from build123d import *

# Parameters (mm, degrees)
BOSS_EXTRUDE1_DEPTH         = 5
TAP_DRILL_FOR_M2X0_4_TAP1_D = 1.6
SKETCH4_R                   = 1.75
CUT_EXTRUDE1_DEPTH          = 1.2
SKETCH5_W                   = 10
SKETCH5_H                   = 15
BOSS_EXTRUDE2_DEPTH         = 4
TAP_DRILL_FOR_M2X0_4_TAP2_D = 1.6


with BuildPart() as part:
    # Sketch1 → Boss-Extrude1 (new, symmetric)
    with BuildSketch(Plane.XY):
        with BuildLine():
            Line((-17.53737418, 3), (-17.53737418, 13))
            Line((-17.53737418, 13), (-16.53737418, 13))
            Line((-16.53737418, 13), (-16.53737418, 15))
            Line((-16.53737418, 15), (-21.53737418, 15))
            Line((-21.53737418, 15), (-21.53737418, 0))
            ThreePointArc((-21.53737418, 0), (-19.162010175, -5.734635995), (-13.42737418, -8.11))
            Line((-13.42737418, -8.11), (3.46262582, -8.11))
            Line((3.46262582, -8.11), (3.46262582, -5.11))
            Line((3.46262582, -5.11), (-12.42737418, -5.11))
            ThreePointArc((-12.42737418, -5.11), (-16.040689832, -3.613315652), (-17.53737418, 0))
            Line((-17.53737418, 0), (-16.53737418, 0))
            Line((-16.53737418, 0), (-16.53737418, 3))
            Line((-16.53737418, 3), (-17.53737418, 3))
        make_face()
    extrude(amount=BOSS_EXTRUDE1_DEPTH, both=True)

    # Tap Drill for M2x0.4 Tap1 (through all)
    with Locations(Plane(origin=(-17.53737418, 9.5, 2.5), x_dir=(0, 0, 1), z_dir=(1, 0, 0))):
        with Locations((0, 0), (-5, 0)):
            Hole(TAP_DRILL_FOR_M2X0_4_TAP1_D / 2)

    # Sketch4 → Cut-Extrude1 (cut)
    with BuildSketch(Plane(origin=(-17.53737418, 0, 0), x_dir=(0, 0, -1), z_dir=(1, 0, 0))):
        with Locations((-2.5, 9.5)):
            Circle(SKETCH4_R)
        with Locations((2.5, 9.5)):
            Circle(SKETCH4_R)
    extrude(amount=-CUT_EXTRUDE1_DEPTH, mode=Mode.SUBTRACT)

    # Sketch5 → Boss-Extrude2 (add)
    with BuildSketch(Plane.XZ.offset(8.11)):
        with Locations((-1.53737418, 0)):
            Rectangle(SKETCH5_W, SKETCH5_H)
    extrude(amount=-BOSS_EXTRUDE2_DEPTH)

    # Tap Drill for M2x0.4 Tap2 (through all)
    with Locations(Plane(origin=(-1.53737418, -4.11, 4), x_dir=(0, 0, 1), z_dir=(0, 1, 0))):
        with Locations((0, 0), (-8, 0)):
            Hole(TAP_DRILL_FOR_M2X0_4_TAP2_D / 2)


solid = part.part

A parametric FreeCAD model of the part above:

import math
import FreeCAD as App
import Part
import Sketcher


def add_polygon(sketch, points):
    """Adds a closed chain of lines whose ends are joined by coincident constraints."""
    first, n = sketch.GeometryCount, len(points)
    for a, b in zip(points, points[1:] + points[:1]):
        sketch.addGeometry(Part.LineSegment(App.Vector(*a, 0), App.Vector(*b, 0)), False)
    for i in range(n):
        sketch.addConstraint(Sketcher.Constraint("Coincident", first + i, 2, first + (i + 1) % n, 1))

doc = App.newDocument("Part")
body = doc.addObject("PartDesign::Body", "Body")

# Sketch on XY plane
sketch1 = doc.addObject("Sketcher::SketchObject", "Sketch")
body.addObject(sketch1)
sketch1.AttachmentSupport = (doc.XY_Plane, [""])
sketch1.MapMode = "FlatFace"
sketch1.addGeometry(Part.LineSegment(App.Vector(-17.5, 3, 0), App.Vector(-17.5, 13, 0)), False)
sketch1.addGeometry(Part.LineSegment(App.Vector(-17.5, 13, 0), App.Vector(-16.5, 13, 0)), False)
sketch1.addGeometry(Part.LineSegment(App.Vector(-16.5, 13, 0), App.Vector(-16.5, 15, 0)), False)
sketch1.addGeometry(Part.LineSegment(App.Vector(-16.5, 15, 0), App.Vector(-21.5, 15, 0)), False)
sketch1.addGeometry(Part.LineSegment(App.Vector(-21.5, 15, 0), App.Vector(-21.5, 0, 0)), False)
sketch1.addGeometry(Part.ArcOfCircle(Part.Circle(App.Vector(-13.4, 0, 0), App.Vector(0, 0, 1), 8.1), math.radians(-180), math.radians(-90)), False)
sketch1.addGeometry(Part.LineSegment(App.Vector(-13.4, -8.1, 0), App.Vector(3.5, -8.1, 0)), False)
sketch1.addGeometry(Part.LineSegment(App.Vector(3.5, -8.1, 0), App.Vector(3.5, -5.1, 0)), False)
sketch1.addGeometry(Part.LineSegment(App.Vector(3.5, -5.1, 0), App.Vector(-12.4, -5.1, 0)), False)
sketch1.addGeometry(Part.ArcOfCircle(Part.Circle(App.Vector(-12.4, 0, 0), App.Vector(0, 0, 1), 5.1), math.radians(180), math.radians(270)), False)
sketch1.addGeometry(Part.LineSegment(App.Vector(-17.5, 0, 0), App.Vector(-16.5, 0, 0)), False)
sketch1.addGeometry(Part.LineSegment(App.Vector(-16.5, 0, 0), App.Vector(-16.5, 3, 0)), False)
sketch1.addGeometry(Part.LineSegment(App.Vector(-16.5, 3, 0), App.Vector(-17.5, 3, 0)), False)
sketch1.addConstraint(Sketcher.Constraint("Coincident", 0, 2, 1, 1))
sketch1.addConstraint(Sketcher.Constraint("Coincident", 1, 2, 2, 1))
sketch1.addConstraint(Sketcher.Constraint("Coincident", 2, 2, 3, 1))
sketch1.addConstraint(Sketcher.Constraint("Coincident", 3, 2, 4, 1))
sketch1.addConstraint(Sketcher.Constraint("Tangent", 4, 2, 5, 1))
sketch1.addConstraint(Sketcher.Constraint("Tangent", 5, 2, 6, 1))
sketch1.addConstraint(Sketcher.Constraint("Coincident", 6, 2, 7, 1))
sketch1.addConstraint(Sketcher.Constraint("Coincident", 7, 2, 8, 1))
sketch1.addConstraint(Sketcher.Constraint("Tangent", 8, 2, 9, 2))
sketch1.addConstraint(Sketcher.Constraint("Coincident", 9, 1, 10, 1))
sketch1.addConstraint(Sketcher.Constraint("Coincident", 10, 2, 11, 1))
sketch1.addConstraint(Sketcher.Constraint("Coincident", 11, 2, 12, 1))
sketch1.addConstraint(Sketcher.Constraint("Coincident", 12, 2, 0, 1))
sketch1.addConstraint(Sketcher.Constraint("Vertical", 0))
sketch1.addConstraint(Sketcher.Constraint("Horizontal", 1))
sketch1.addConstraint(Sketcher.Constraint("Vertical", 2))
sketch1.addConstraint(Sketcher.Constraint("Horizontal", 3))
sketch1.addConstraint(Sketcher.Constraint("Vertical", 4))
sketch1.addConstraint(Sketcher.Constraint("Horizontal", 6))
sketch1.addConstraint(Sketcher.Constraint("Vertical", 7))
sketch1.addConstraint(Sketcher.Constraint("Horizontal", 8))
sketch1.addConstraint(Sketcher.Constraint("Horizontal", 10))
sketch1.addConstraint(Sketcher.Constraint("Vertical", 11))
sketch1.addConstraint(Sketcher.Constraint("Horizontal", 12))
sketch1.addConstraint(Sketcher.Constraint("PointOnObject", 5, 3, -1))
sketch1.addConstraint(Sketcher.Constraint("PointOnObject", 9, 3, -1))
sketch1.addConstraint(Sketcher.Constraint("PointOnObject", 9, 1, -1))
sketch1.addConstraint(Sketcher.Constraint("Vertical", 0, 2, 9, 1))
sketch1.addConstraint(Sketcher.Constraint("Vertical", 2, 2, 10, 2))
sketch1.addConstraint(Sketcher.Constraint("Equal", 7, 11))
sketch1.addConstraint(Sketcher.Constraint("DistanceX", 1, 1, 1, 2, 1.0))
sketch1.addConstraint(Sketcher.Constraint("DistanceX", 3, 2, 3, 1, 5.0))
sketch1.addConstraint(Sketcher.Constraint("DistanceY", 0, 1, 0, 2, 10.0))
sketch1.addConstraint(Sketcher.Constraint("DistanceY", 2, 1, 2, 2, 2.0))
sketch1.addConstraint(Sketcher.Constraint("DistanceY", 4, 2, 4, 1, 15.0))
sketch1.addConstraint(Sketcher.Constraint("Radius", 5, 8.11))
sketch1.addConstraint(Sketcher.Constraint("DistanceX", 4, 2, 6, 2, 25.0))
sketch1.addConstraint(Sketcher.Constraint("DistanceX", 5, 3, -1, 1, 13.427374))
pad1 = doc.addObject("PartDesign::Pad", "Pad")
body.addObject(pad1)
pad1.Profile = sketch1
pad1.Length = 10
pad1.Midplane = True

# Sketch on YZ plane
sketch2 = doc.addObject("Sketcher::SketchObject", "Sketch001")
body.addObject(sketch2)
sketch2.AttachmentSupport = (doc.YZ_Plane, [""])
sketch2.MapMode = "FlatFace"
sketch2.AttachmentOffset = App.Placement(App.Vector(0, 0, -17.537374), App.Rotation())
sketch2.addGeometry(Part.Circle(App.Vector(9.5, 2.5, 0), App.Vector(0, 0, 1), 0.8), False)
sketch2.addGeometry(Part.Circle(App.Vector(9.5, -2.5, 0), App.Vector(0, 0, 1), 0.8), False)
sketch2.addConstraint(Sketcher.Constraint("Equal", 0, 1))
sketch2.addConstraint(Sketcher.Constraint("Symmetric", 0, 3, 1, 3, -1))
sketch2.addConstraint(Sketcher.Constraint("Diameter", 0, 1.6))
sketch2.addConstraint(Sketcher.Constraint("DistanceY", 1, 3, 0, 3, 5.0))
sketch2.addConstraint(Sketcher.Constraint("DistanceX", -1, 1, 0, 3, 9.5))
doc.recompute()
hole = doc.addObject("PartDesign::Hole", "Hole")
body.addObject(hole)
hole.Profile = sketch2
hole.ThreadType = "None"
hole.Diameter = 1.6
hole.DepthType = "ThroughAll"

# Sketch on YZ plane
sketch3 = doc.addObject("Sketcher::SketchObject", "Sketch002")
body.addObject(sketch3)
sketch3.AttachmentSupport = (doc.YZ_Plane, [""])
sketch3.MapMode = "FlatFace"
sketch3.AttachmentOffset = App.Placement(App.Vector(0, 0, -17.537374), App.Rotation())
sketch3.addGeometry(Part.Circle(App.Vector(9.5, 2.5, 0), App.Vector(0, 0, 1), 1.8), False)
sketch3.addGeometry(Part.Circle(App.Vector(9.5, -2.5, 0), App.Vector(0, 0, 1), 1.8), False)
sketch3.addConstraint(Sketcher.Constraint("Equal", 0, 1))
sketch3.addConstraint(Sketcher.Constraint("Symmetric", 0, 3, 1, 3, -1))
sketch3.addConstraint(Sketcher.Constraint("Diameter", 0, 3.5))
sketch3.addConstraint(Sketcher.Constraint("DistanceY", 1, 3, 0, 3, 5.0))
sketch3.addConstraint(Sketcher.Constraint("DistanceX", -1, 1, 0, 3, 9.5))
pocket1 = doc.addObject("PartDesign::Pocket", "Pocket")
body.addObject(pocket1)
pocket1.Profile = sketch3
pocket1.Length = 1.2

# Sketch on XZ plane
sketch4 = doc.addObject("Sketcher::SketchObject", "Sketch003")
body.addObject(sketch4)
sketch4.AttachmentSupport = (doc.XZ_Plane, [""])
sketch4.MapMode = "FlatFace"
sketch4.AttachmentOffset = App.Placement(App.Vector(0, 0, 8.11), App.Rotation())
add_polygon(sketch4, [(-7, 8), (-7, -8), (3, -8), (3, 8)])  # lines 0-3
sketch4.addConstraint(Sketcher.Constraint("Vertical", 0))
sketch4.addConstraint(Sketcher.Constraint("Horizontal", 1))
sketch4.addConstraint(Sketcher.Constraint("Vertical", 2))
sketch4.addConstraint(Sketcher.Constraint("Horizontal", 3))
sketch4.addConstraint(Sketcher.Constraint("DistanceX", 1, 1, 1, 2, 10.0))
sketch4.addConstraint(Sketcher.Constraint("DistanceY", 0, 2, 0, 1, 15.0))
sketch4.addConstraint(Sketcher.Constraint("DistanceY", 0, 2, -1, 1, 7.5))
sketch4.addConstraint(Sketcher.Constraint("DistanceX", 0, 2, -1, 1, 6.537374))
pad2 = doc.addObject("PartDesign::Pad", "Pad001")
body.addObject(pad2)
pad2.Profile = sketch4
pad2.Length = 4
pad2.Reversed = True

# Sketch on XZ plane
sketch5 = doc.addObject("Sketcher::SketchObject", "Sketch004")
body.addObject(sketch5)
sketch5.AttachmentSupport = (doc.XZ_Plane, [""])
sketch5.MapMode = "FlatFace"
sketch5.AttachmentOffset = App.Placement(App.Vector(0, 0, 4.11), App.Rotation())
sketch5.addGeometry(Part.Circle(App.Vector(-1.5, 4, 0), App.Vector(0, 0, 1), 0.8), False)
sketch5.addGeometry(Part.Circle(App.Vector(-1.5, -4, 0), App.Vector(0, 0, 1), 0.8), False)
sketch5.addConstraint(Sketcher.Constraint("Equal", 0, 1))
sketch5.addConstraint(Sketcher.Constraint("Symmetric", 0, 3, 1, 3, -1))
sketch5.addConstraint(Sketcher.Constraint("Diameter", 0, 1.6))
sketch5.addConstraint(Sketcher.Constraint("DistanceY", -1, 1, 0, 3, 4.0))
sketch5.addConstraint(Sketcher.Constraint("DistanceX", 0, 3, -1, 1, 1.537374))
doc.recompute()
hole2 = doc.addObject("PartDesign::Hole", "Hole001")
body.addObject(hole2)
hole2.Profile = sketch5
hole2.ThreadType = "None"
hole2.Diameter = 1.6
hole2.DepthType = "ThroughAll"
hole2.Reversed = True

doc.recompute()
